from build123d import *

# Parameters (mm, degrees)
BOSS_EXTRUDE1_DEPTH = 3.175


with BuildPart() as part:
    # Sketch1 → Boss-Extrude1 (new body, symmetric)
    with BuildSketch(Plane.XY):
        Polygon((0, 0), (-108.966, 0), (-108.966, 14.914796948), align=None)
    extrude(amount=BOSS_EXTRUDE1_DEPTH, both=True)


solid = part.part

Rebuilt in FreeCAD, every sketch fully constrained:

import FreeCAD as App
import Part
import Sketcher
Q = App.Units.Quantity

doc = App.newDocument("Part")
body = doc.addObject("PartDesign::Body", "Body")

# Sketch on XY plane
sketch1 = body.newObject("Sketcher::SketchObject", "Sketch")
sketch1.AttachmentSupport = (doc.getObject("XY_Plane"), [""])
sketch1.MapMode = "FlatFace"
sketch1.addGeometry(Part.LineSegment(App.Vector(-109, 0, 0), App.Vector(0, 0, 0)), False)
sketch1.addGeometry(Part.LineSegment(App.Vector(0, 0, 0), App.Vector(-109, 15, 0)), False)
sketch1.addGeometry(Part.LineSegment(App.Vector(-109, 15, 0), App.Vector(-109, 0, 0)), False)
sketch1.addConstraint(Sketcher.Constraint("Coincident", 0, 2, 1, 1))
sketch1.addConstraint(Sketcher.Constraint("Coincident", 1, 2, 2, 1))
sketch1.addConstraint(Sketcher.Constraint("Coincident", 2, 2, 0, 1))
sketch1.addConstraint(Sketcher.Constraint("Horizontal", 0))
sketch1.addConstraint(Sketcher.Constraint("Vertical", 2))
sketch1.addConstraint(Sketcher.Constraint("Coincident", 0, 2, -1, 1))
sketch1.addConstraint(Sketcher.Constraint("DistanceX", 0, 1, 0, 2, Q("4.29 in")))
sketch1.addConstraint(Sketcher.Constraint("Distance", 1, Q("4.33 in")))
pad1 = body.newObject("PartDesign::Pad", "Pad")
pad1.Profile = sketch1
pad1.Length = Q("0.25 in")
pad1.Midplane = True

doc.recompute()
